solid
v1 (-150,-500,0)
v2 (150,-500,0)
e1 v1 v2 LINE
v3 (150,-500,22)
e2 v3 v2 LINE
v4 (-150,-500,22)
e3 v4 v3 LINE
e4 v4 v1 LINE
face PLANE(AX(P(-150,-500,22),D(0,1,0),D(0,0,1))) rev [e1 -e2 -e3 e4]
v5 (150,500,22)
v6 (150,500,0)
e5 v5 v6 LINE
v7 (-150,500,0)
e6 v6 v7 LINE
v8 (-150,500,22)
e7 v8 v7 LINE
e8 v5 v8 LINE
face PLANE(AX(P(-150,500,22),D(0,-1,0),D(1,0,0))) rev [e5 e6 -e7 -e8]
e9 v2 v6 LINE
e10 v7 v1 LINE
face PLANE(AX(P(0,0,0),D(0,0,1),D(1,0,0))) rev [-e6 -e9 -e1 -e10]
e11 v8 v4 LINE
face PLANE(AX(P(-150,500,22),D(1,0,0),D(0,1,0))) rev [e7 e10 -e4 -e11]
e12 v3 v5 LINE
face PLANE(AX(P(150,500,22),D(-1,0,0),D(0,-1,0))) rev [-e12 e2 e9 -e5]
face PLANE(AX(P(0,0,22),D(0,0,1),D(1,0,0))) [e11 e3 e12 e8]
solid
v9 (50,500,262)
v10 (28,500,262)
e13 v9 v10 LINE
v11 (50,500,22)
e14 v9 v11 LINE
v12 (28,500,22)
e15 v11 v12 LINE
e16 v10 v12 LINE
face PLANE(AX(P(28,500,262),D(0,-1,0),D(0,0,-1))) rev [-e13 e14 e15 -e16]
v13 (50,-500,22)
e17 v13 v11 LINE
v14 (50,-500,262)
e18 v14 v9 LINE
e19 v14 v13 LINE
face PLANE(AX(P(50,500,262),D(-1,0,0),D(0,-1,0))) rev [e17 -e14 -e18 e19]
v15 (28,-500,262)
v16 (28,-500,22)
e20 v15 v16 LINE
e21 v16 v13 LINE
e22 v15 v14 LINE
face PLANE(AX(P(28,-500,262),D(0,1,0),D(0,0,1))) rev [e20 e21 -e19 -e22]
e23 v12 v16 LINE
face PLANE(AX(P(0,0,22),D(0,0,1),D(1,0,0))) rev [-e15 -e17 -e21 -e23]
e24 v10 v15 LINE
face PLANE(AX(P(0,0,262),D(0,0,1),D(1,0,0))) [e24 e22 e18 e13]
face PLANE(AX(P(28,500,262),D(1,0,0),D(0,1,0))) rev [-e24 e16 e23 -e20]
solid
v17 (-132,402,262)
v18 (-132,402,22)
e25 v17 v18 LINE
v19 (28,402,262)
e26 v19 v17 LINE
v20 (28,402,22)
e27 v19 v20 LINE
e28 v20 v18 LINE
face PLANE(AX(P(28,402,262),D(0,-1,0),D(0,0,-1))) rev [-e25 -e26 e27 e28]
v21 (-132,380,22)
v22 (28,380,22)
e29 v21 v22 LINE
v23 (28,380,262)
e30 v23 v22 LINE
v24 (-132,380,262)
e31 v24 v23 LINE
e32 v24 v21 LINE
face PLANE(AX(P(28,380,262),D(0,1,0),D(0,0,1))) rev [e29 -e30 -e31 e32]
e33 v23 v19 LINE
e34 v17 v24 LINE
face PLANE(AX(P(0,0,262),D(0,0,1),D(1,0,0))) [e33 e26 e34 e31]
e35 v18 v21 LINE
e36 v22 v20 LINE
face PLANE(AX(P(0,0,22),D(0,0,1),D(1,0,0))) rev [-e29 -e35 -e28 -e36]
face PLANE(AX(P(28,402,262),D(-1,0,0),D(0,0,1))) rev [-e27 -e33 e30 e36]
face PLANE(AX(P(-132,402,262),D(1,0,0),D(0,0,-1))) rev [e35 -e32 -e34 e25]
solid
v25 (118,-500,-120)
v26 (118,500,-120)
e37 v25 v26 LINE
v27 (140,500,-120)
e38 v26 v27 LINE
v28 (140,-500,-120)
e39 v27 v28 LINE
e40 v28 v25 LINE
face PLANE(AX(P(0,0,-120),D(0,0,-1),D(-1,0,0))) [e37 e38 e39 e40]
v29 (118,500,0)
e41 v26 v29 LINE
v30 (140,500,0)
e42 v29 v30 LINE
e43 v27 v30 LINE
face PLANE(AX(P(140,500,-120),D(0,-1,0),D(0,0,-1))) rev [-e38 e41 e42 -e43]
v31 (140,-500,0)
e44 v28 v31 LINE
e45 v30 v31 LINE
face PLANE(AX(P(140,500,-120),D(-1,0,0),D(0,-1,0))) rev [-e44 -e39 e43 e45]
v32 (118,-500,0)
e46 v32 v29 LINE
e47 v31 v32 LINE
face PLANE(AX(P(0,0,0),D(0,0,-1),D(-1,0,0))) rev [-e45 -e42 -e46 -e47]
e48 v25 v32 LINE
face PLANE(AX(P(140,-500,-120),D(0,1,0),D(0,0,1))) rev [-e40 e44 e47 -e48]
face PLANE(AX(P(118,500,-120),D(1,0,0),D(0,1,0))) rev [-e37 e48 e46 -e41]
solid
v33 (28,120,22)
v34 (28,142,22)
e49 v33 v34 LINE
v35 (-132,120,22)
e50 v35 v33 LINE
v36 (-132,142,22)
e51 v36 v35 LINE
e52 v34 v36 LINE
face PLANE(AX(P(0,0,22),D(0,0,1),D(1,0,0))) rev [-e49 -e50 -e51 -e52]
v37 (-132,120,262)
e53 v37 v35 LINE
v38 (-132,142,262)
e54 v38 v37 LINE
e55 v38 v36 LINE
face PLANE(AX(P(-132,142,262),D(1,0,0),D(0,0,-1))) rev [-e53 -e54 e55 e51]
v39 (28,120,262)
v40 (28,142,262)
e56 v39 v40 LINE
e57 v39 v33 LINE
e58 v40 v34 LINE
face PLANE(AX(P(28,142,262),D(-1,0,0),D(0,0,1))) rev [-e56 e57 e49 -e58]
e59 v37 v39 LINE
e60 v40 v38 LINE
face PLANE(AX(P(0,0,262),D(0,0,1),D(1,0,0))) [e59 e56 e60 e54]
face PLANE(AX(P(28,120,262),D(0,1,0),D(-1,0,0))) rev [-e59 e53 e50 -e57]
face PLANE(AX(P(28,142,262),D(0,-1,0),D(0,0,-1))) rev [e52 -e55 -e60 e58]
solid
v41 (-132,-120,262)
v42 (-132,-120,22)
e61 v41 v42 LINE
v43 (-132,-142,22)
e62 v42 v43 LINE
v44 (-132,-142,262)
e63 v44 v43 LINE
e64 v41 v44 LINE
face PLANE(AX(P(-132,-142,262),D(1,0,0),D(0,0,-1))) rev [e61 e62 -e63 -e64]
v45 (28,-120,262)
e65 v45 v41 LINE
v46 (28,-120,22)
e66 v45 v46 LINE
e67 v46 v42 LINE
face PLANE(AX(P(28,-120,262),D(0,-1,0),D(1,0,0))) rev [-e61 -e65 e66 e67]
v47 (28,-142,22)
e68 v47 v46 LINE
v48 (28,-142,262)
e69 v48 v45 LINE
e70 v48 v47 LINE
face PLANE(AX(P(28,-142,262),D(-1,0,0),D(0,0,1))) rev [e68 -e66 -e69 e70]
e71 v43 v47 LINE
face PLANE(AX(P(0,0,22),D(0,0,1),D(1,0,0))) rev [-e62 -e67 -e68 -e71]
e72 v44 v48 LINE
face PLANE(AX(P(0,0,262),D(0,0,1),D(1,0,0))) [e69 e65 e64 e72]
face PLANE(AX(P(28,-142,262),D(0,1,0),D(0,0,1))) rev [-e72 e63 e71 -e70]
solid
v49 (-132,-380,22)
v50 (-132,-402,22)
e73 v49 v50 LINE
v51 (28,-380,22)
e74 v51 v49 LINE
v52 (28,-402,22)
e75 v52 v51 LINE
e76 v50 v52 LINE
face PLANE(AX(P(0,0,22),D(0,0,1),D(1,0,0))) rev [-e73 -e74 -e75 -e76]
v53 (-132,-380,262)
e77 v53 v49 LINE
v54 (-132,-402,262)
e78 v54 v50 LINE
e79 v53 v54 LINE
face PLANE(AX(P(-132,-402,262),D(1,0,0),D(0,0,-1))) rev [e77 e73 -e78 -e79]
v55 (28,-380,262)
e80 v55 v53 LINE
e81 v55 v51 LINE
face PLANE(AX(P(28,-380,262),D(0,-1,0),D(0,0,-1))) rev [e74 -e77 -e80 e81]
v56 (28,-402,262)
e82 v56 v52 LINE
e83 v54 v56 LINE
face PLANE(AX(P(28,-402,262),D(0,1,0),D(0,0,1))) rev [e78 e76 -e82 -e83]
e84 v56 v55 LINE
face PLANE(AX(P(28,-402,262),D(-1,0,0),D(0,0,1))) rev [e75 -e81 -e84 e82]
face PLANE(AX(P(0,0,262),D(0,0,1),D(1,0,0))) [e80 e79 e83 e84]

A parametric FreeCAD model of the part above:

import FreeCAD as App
import Part
import Sketcher

doc = App.newDocument("Part")
body = doc.addObject("PartDesign::Body", "Body")

sketch1 = doc.addObject("Sketcher::SketchObject", "Sketch")
body.addObject(sketch1)
sketch1.AttachmentSupport = (doc.XY_Plane, [""])
sketch1.MapMode = "FlatFace"
sketch1.addGeometry([
    Part.LineSegment(App.Vector(-150, 500, 0), App.Vector(-150, -500, 0)),
    Part.LineSegment(App.Vector(-150, -500, 0), App.Vector(150, -500, 0)),
    Part.LineSegment(App.Vector(150, -500, 0), App.Vector(150, 500, 0)),
    Part.LineSegment(App.Vector(150, 500, 0), App.Vector(-150, 500, 0)),
], False)
sketch1.addConstraint([
    Sketcher.Constraint("Coincident", 0, 2, 1, 1),
    Sketcher.Constraint("Coincident", 1, 2, 2, 1),
    Sketcher.Constraint("Coincident", 2, 2, 3, 1),
    Sketcher.Constraint("Coincident", 3, 2, 0, 1),
    Sketcher.Constraint("Vertical", 0),
    Sketcher.Constraint("Horizontal", 1),
    Sketcher.Constraint("Vertical", 2),
    Sketcher.Constraint("Horizontal", 3),
    Sketcher.Constraint("Symmetric", 0, 2, 2, 2, -1, 1),
    Sketcher.Constraint("DistanceX", 1, 1, 1, 2, 300.0),
    Sketcher.Constraint("DistanceY", 0, 2, 0, 1, 1000.0),
])
pad1 = doc.addObject("PartDesign::Pad", "Pad")
body.addObject(pad1)
pad1.Profile = sketch1
pad1.Length = 22
body2 = doc.addObject("PartDesign::Body", "Body001")

sketch2 = doc.addObject("Sketcher::SketchObject", "Sketch001")
body2.addObject(sketch2)
sketch2.AttachmentSupport = (doc.getObject("XY_Plane001"), [""])
sketch2.MapMode = "FlatFace"
sketch2.AttachmentOffset = App.Placement(App.Vector(0, 0, 22), App.Rotation())
sketch2.addGeometry([
    Part.LineSegment(App.Vector(28, 500, 0), App.Vector(28, -500, 0)),
    Part.LineSegment(App.Vector(28, -500, 0), App.Vector(50, -500, 0)),
    Part.LineSegment(App.Vector(50, -500, 0), App.Vector(50, 500, 0)),
    Part.LineSegment(App.Vector(50, 500, 0), App.Vector(28, 500, 0)),
], False)
sketch2.addConstraint([
    Sketcher.Constraint("Coincident", 0, 2, 1, 1),
    Sketcher.Constraint("Coincident", 1, 2, 2, 1),
    Sketcher.Constraint("Coincident", 2, 2, 3, 1),
    Sketcher.Constraint("Coincident", 3, 2, 0, 1),
    Sketcher.Constraint("Vertical", 0),
    Sketcher.Constraint("Horizontal", 1),
    Sketcher.Constraint("Vertical", 2),
    Sketcher.Constraint("Horizontal", 3),
    Sketcher.Constraint("DistanceX", 1, 1, 1, 2, 22.0),
    Sketcher.Constraint("DistanceY", 0, 2, 0, 1, 1000.0),
    Sketcher.Constraint("DistanceX", -1, 1, 0, 2, 28.0),
    Sketcher.Constraint("DistanceY", 0, 2, -1, 1, 500.0),
])
pad2 = doc.addObject("PartDesign::Pad", "Pad001")
body2.addObject(pad2)
pad2.Profile = sketch2
pad2.Length = 240
body3 = doc.addObject("PartDesign::Body", "Body002")

sketch3 = doc.addObject("Sketcher::SketchObject", "Sketch002")
body3.addObject(sketch3)
sketch3.AttachmentSupport = (doc.getObject("XY_Plane002"), [""])
sketch3.MapMode = "FlatFace"
sketch3.AttachmentOffset = App.Placement(App.Vector(0, 0, 22), App.Rotation())
sketch3.addGeometry([
    Part.LineSegment(App.Vector(-132, -380, 0), App.Vector(-132, -402, 0)),
    Part.LineSegment(App.Vector(-132, -402, 0), App.Vector(28, -402, 0)),
    Part.LineSegment(App.Vector(28, -402, 0), App.Vector(28, -380, 0)),
    Part.LineSegment(App.Vector(28, -380, 0), App.Vector(-132, -380, 0)),
], False)
sketch3.addConstraint([
    Sketcher.Constraint("Coincident", 0, 2, 1, 1),
    Sketcher.Constraint("Coincident", 1, 2, 2, 1),
    Sketcher.Constraint("Coincident", 2, 2, 3, 1),
    Sketcher.Constraint("Coincident", 3, 2, 0, 1),
    Sketcher.Constraint("Vertical", 0),
    Sketcher.Constraint("Horizontal", 1),
    Sketcher.Constraint("Vertical", 2),
    Sketcher.Constraint("Horizontal", 3),
    Sketcher.Constraint("DistanceX", 1, 1, 1, 2, 160.0),
    Sketcher.Constraint("DistanceY", 0, 2, 0, 1, 22.0),
    Sketcher.Constraint("DistanceX", 0, 2, -1, 1, 132.0),
    Sketcher.Constraint("DistanceY", 0, 2, -1, 1, 402.0),
])
pad3 = doc.addObject("PartDesign::Pad", "Pad002")
body3.addObject(pad3)
pad3.Profile = sketch3
pad3.Length = 240
body4 = doc.addObject("PartDesign::Body", "Body003")

sketch4 = doc.addObject("Sketcher::SketchObject", "Sketch003")
body4.addObject(sketch4)
sketch4.AttachmentSupport = (doc.getObject("XY_Plane003"), [""])
sketch4.MapMode = "FlatFace"
sketch4.AttachmentOffset = App.Placement(App.Vector(0, 0, 22), App.Rotation())
sketch4.addGeometry([
    Part.LineSegment(App.Vector(-132, 402, 0), App.Vector(-132, 380, 0)),
    Part.LineSegment(App.Vector(-132, 380, 0), App.Vector(28, 380, 0)),
    Part.LineSegment(App.Vector(28, 380, 0), App.Vector(28, 402, 0)),
    Part.LineSegment(App.Vector(28, 402, 0), App.Vector(-132, 402, 0)),
], False)
sketch4.addConstraint([
    Sketcher.Constraint("Coincident", 0, 2, 1, 1),
    Sketcher.Constraint("Coincident", 1, 2, 2, 1),
    Sketcher.Constraint("Coincident", 2, 2, 3, 1),
    Sketcher.Constraint("Coincident", 3, 2, 0, 1),
    Sketcher.Constraint("Vertical", 0),
    Sketcher.Constraint("Horizontal", 1),
    Sketcher.Constraint("Vertical", 2),
    Sketcher.Constraint("Horizontal", 3),
    Sketcher.Constraint("DistanceX", 1, 1, 1, 2, 160.0),
    Sketcher.Constraint("DistanceY", 0, 2, 0, 1, 22.0),
    Sketcher.Constraint("DistanceX", 0, 2, -1, 1, 132.0),
    Sketcher.Constraint("DistanceY", -1, 1, 0, 2, 380.0),
])
pad4 = doc.addObject("PartDesign::Pad", "Pad003")
body4.addObject(pad4)
pad4.Profile = sketch4
pad4.Length = 240
body5 = doc.addObject("PartDesign::Body", "Body004")

sketch5 = doc.addObject("Sketcher::SketchObject", "Sketch004")
body5.addObject(sketch5)
sketch5.AttachmentSupport = (doc.getObject("XY_Plane004"), [""])
sketch5.MapMode = "FlatFace"
sketch5.AttachmentOffset = App.Placement(App.Vector(0, 0, 22), App.Rotation())
sketch5.addGeometry([
    Part.LineSegment(App.Vector(-132, -120, 0), App.Vector(-132, -142, 0)),
    Part.LineSegment(App.Vector(-132, -142, 0), App.Vector(28, -142, 0)),
    Part.LineSegment(App.Vector(28, -142, 0), App.Vector(28, -120, 0)),
    Part.LineSegment(App.Vector(28, -120, 0), App.Vector(-132, -120, 0)),
], False)
sketch5.addConstraint([
    Sketcher.Constraint("Coincident", 0, 2, 1, 1),
    Sketcher.Constraint("Coincident", 1, 2, 2, 1),
    Sketcher.Constraint("Coincident", 2, 2, 3, 1),
    Sketcher.Constraint("Coincident", 3, 2, 0, 1),
    Sketcher.Constraint("Vertical", 0),
    Sketcher.Constraint("Horizontal", 1),
    Sketcher.Constraint("Vertical", 2),
    Sketcher.Constraint("Horizontal", 3),
    Sketcher.Constraint("DistanceX", 1, 1, 1, 2, 160.0),
    Sketcher.Constraint("DistanceY", 0, 2, 0, 1, 22.0),
    Sketcher.Constraint("DistanceX", 0, 2, -1, 1, 132.0),
    Sketcher.Constraint("DistanceY", 0, 2, -1, 1, 142.0),
])
pad5 = doc.addObject("PartDesign::Pad", "Pad004")
body5.addObject(pad5)
pad5.Profile = sketch5
pad5.Length = 240
body6 = doc.addObject("PartDesign::Body", "Body005")

sketch6 = doc.addObject("Sketcher::SketchObject", "Sketch005")
body6.addObject(sketch6)
sketch6.AttachmentSupport = (doc.getObject("XY_Plane005"), [""])
sketch6.MapMode = "FlatFace"
sketch6.AttachmentOffset = App.Placement(App.Vector(0, 0, 22), App.Rotation())
sketch6.addGeometry([
    Part.LineSegment(App.Vector(-132, 142, 0), App.Vector(-132, 120, 0)),
    Part.LineSegment(App.Vector(-132, 120, 0), App.Vector(28, 120, 0)),
    Part.LineSegment(App.Vector(28, 120, 0), App.Vector(28, 142, 0)),
    Part.LineSegment(App.Vector(28, 142, 0), App.Vector(-132, 142, 0)),
], False)
sketch6.addConstraint([
    Sketcher.Constraint("Coincident", 0, 2, 1, 1),
    Sketcher.Constraint("Coincident", 1, 2, 2, 1),
    Sketcher.Constraint("Coincident", 2, 2, 3, 1),
    Sketcher.Constraint("Coincident", 3, 2, 0, 1),
    Sketcher.Constraint("Vertical", 0),
    Sketcher.Constraint("Horizontal", 1),
    Sketcher.Constraint("Vertical", 2),
    Sketcher.Constraint("Horizontal", 3),
    Sketcher.Constraint("DistanceX", 1, 1, 1, 2, 160.0),
    Sketcher.Constraint("DistanceY", 0, 2, 0, 1, 22.0),
    Sketcher.Constraint("DistanceX", 0, 2, -1, 1, 132.0),
    Sketcher.Constraint("DistanceY", -1, 1, 0, 2, 120.0),
])
pad6 = doc.addObject("PartDesign::Pad", "Pad005")
body6.addObject(pad6)
pad6.Profile = sketch6
pad6.Length = 240
body7 = doc.addObject("PartDesign::Body", "Body006")

sketch7 = doc.addObject("Sketcher::SketchObject", "Sketch006")
body7.addObject(sketch7)
sketch7.AttachmentSupport = (doc.getObject("XY_Plane006"), [""])
sketch7.MapMode = "FlatFace"
sketch7.addGeometry([
    Part.LineSegment(App.Vector(140, 500, 0), App.Vector(140, -500, 0)),
    Part.LineSegment(App.Vector(140, -500, 0), App.Vector(118, -500, 0)),
    Part.LineSegment(App.Vector(118, -500, 0), App.Vector(118, 500, 0)),
    Part.LineSegment(App.Vector(118, 500, 0), App.Vector(140, 500, 0)),
], False)
sketch7.addConstraint([
    Sketcher.Constraint("Coincident", 0, 2, 1, 1),
    Sketcher.Constraint("Coincident", 1, 2, 2, 1),
    Sketcher.Constraint("Coincident", 2, 2, 3, 1),
    Sketcher.Constraint("Coincident", 3, 2, 0, 1),
    Sketcher.Constraint("Vertical", 0),
    Sketcher.Constraint("Horizontal", 1),
    Sketcher.Constraint("Vertical", 2),
    Sketcher.Constraint("Horizontal", 3),
    Sketcher.Constraint("DistanceX", 1, 2, 1, 1, 22.0),
    Sketcher.Constraint("DistanceY", 0, 2, 0, 1, 1000.0),
    Sketcher.Constraint("DistanceX", -1, 1, 0, 2, 140.0),
    Sketcher.Constraint("DistanceY", 0, 2, -1, 1, 500.0),
])
pad7 = doc.addObject("PartDesign::Pad", "Pad006")
body7.addObject(pad7)
pad7.Profile = sketch7
pad7.Length = 120
pad7.Reversed = True

doc.recompute()
